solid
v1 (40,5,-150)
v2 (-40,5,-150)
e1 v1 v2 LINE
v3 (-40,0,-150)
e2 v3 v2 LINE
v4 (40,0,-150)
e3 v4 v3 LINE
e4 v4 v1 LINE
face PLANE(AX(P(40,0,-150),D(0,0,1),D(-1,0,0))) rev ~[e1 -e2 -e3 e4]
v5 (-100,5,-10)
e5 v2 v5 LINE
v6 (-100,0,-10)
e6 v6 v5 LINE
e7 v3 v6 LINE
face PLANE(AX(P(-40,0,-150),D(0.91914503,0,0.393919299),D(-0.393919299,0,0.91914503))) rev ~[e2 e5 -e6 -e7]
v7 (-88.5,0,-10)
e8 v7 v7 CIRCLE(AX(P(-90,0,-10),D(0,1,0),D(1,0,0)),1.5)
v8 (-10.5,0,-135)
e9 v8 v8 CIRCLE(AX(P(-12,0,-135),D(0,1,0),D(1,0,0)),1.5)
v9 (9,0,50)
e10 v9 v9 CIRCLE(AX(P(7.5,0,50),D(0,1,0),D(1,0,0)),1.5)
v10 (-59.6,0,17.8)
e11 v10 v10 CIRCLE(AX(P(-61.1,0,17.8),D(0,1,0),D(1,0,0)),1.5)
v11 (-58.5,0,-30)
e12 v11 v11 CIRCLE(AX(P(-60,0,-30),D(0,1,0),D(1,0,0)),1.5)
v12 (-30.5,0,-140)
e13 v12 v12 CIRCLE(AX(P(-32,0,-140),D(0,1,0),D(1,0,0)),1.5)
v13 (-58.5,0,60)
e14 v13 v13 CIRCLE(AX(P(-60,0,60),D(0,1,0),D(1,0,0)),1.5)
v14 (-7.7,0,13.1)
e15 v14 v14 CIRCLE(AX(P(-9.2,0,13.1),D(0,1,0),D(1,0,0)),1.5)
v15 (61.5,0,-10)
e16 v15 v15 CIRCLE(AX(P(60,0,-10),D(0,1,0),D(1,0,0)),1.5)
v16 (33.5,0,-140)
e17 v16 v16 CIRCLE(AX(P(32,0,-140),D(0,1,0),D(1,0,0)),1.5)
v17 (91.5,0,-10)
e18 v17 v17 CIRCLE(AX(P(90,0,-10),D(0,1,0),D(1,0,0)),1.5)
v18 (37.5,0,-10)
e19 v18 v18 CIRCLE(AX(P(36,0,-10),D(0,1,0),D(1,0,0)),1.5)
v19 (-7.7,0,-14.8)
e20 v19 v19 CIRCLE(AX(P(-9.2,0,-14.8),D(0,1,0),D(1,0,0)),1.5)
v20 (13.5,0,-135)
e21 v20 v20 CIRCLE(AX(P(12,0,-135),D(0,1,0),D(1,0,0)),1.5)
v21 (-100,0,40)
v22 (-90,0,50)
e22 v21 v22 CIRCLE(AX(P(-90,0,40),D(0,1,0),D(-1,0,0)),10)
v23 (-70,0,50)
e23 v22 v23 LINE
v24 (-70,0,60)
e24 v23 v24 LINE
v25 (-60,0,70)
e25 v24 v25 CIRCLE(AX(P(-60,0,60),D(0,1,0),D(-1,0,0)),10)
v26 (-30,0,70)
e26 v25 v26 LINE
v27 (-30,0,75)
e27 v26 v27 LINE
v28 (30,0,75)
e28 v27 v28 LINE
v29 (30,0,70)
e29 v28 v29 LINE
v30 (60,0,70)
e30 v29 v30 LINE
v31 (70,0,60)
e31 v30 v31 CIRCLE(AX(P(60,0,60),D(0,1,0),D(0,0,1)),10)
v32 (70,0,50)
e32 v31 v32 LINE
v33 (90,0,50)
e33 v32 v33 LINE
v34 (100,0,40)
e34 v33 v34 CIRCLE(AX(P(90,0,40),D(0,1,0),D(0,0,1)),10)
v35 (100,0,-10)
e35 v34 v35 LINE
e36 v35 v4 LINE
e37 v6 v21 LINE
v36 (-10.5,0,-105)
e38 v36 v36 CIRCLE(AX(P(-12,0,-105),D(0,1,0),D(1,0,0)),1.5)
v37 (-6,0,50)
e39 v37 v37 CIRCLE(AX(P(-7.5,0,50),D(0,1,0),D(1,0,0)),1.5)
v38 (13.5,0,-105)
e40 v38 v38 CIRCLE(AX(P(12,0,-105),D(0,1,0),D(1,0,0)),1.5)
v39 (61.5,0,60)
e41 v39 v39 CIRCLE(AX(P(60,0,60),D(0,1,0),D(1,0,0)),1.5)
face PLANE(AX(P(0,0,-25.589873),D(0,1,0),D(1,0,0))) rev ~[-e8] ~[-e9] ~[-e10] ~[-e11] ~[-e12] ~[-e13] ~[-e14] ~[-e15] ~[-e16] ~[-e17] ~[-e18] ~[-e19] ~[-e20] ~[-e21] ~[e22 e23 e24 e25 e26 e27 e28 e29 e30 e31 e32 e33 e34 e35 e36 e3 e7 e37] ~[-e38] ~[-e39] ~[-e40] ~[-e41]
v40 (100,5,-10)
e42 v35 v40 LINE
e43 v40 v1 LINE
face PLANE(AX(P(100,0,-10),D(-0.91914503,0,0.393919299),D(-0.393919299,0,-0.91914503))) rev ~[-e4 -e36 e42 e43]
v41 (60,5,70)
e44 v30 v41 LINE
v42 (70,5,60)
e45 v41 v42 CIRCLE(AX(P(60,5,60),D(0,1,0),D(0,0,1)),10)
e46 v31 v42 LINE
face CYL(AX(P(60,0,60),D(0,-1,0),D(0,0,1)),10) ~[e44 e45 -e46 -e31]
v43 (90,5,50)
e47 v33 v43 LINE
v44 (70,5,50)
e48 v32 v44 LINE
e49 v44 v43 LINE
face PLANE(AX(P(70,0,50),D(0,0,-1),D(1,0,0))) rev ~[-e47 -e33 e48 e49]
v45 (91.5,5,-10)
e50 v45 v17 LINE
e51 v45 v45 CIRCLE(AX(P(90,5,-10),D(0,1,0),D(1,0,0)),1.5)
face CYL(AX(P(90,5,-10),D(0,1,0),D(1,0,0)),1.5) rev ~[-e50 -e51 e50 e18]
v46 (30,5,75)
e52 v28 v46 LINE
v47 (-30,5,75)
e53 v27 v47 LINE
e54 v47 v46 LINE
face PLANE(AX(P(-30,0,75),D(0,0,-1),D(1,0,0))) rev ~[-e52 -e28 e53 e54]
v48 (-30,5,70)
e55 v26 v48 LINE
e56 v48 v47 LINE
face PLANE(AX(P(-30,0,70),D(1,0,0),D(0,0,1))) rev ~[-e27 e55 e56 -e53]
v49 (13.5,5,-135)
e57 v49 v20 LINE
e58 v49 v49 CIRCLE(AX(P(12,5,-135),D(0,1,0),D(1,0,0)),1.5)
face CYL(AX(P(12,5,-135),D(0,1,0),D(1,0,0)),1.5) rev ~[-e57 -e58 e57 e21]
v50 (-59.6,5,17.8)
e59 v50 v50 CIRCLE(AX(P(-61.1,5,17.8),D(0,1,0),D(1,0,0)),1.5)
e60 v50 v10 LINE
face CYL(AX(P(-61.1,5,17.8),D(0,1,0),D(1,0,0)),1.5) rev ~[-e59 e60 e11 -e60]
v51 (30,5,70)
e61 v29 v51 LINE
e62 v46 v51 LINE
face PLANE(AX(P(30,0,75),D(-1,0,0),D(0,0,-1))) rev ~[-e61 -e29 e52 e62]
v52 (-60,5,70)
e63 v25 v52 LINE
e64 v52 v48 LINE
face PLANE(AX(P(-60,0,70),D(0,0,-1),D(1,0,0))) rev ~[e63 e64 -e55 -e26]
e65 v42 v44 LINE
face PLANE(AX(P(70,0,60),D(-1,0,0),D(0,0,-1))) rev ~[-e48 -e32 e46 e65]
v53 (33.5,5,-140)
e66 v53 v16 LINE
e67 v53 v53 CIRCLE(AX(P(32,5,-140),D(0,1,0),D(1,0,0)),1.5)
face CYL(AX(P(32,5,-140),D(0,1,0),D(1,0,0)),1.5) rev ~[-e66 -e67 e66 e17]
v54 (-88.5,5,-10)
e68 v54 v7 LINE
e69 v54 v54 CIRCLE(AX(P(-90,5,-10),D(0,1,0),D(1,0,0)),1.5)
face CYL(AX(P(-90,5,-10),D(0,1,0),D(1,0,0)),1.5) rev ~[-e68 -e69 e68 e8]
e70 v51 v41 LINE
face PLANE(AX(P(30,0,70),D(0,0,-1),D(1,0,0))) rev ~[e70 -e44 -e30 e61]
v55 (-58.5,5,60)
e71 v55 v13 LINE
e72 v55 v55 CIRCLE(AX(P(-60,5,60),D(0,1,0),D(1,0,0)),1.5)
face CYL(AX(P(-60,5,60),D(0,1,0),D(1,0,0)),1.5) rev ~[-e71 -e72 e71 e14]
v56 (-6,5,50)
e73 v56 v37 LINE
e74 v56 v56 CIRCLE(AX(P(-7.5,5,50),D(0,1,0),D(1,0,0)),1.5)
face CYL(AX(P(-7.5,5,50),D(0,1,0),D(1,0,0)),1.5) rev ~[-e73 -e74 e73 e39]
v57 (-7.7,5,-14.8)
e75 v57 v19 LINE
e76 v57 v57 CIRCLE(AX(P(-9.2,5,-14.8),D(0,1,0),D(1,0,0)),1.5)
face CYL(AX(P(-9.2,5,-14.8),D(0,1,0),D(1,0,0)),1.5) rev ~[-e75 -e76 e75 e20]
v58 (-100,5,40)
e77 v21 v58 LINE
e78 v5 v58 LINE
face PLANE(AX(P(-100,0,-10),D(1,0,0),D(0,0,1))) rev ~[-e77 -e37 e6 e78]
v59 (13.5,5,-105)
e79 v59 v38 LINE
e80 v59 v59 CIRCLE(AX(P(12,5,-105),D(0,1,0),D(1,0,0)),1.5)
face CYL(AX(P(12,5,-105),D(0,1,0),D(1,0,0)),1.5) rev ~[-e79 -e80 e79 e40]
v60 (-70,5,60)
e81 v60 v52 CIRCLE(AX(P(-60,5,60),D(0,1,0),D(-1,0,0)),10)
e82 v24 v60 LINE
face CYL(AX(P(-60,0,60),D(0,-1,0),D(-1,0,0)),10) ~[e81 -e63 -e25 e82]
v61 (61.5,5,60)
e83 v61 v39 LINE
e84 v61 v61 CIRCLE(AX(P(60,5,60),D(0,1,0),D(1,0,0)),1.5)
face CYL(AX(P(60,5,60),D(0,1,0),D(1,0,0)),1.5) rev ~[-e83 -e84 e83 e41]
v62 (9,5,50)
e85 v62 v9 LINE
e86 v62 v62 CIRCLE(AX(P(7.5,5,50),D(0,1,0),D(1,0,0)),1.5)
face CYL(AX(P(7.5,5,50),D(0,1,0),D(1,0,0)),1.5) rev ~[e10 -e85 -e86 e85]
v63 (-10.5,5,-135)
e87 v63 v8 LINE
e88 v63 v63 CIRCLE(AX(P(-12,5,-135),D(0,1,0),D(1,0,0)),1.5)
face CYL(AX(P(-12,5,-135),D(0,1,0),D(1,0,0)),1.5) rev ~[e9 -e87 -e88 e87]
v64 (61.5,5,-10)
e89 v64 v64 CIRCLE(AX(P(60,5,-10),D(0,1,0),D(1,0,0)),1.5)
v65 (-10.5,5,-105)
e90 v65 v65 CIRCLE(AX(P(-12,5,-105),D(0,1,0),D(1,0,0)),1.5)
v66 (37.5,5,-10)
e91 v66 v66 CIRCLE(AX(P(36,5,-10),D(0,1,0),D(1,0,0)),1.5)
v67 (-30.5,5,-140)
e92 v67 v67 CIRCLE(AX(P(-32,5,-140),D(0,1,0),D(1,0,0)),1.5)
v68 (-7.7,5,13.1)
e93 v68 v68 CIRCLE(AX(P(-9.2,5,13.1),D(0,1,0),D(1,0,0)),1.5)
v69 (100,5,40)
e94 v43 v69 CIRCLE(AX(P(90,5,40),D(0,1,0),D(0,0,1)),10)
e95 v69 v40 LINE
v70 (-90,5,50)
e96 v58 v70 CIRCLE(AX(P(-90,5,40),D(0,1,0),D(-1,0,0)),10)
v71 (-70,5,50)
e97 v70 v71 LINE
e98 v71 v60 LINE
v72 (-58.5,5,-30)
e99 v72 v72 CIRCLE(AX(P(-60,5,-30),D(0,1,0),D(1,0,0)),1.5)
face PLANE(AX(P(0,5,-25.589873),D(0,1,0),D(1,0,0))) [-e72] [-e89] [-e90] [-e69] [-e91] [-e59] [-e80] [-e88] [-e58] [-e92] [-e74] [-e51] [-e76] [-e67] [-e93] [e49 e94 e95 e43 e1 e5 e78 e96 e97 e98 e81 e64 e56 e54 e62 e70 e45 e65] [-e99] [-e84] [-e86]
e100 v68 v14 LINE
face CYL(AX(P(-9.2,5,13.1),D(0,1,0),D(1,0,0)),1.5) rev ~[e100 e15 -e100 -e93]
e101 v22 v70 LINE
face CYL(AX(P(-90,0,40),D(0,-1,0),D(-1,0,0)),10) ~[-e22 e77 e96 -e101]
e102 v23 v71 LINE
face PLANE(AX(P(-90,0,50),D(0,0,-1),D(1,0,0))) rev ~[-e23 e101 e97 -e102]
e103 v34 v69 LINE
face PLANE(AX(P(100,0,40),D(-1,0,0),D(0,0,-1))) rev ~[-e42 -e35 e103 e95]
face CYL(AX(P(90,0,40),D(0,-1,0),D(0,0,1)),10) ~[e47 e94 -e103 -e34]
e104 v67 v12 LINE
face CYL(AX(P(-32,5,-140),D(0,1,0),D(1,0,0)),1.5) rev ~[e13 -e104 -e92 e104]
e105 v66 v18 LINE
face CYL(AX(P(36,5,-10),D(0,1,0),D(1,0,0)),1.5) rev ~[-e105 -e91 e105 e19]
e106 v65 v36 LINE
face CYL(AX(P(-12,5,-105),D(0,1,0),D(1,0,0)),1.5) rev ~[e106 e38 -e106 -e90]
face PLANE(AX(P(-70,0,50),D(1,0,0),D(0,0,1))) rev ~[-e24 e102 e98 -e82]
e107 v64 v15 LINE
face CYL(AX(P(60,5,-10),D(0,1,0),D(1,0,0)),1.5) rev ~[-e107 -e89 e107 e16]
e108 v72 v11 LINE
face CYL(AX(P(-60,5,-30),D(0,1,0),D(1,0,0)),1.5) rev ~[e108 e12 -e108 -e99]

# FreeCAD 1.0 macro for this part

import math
import FreeCAD as App
import Part
import Sketcher

doc = App.newDocument("Part")
params = doc.addObject("Spreadsheet::Sheet", "Params")
for row, (alias, value) in enumerate([
    ("sketch1_radius", "10 mm"),
    ("sketch1_width", "80 mm"),
    ("sketch1_width2", "20 mm"),
    ("sketch1_width3", "30 mm"),
    ("sketch1_width4", "60 mm"),
    ("pad1_length", "5 mm"),
    ("sketch2_diameter", "3 mm"),
    ("sketch3_diameter", "3 mm"),
    ("sketch4_diameter", "3 mm"),
    ("pocket3_length", "10 mm"),
    ("sketch5_diameter", "3 mm"),
    ("pocket4_length", "10 mm"),
], start=1):
    params.set(f"A{row}", alias)
    params.set(f"B{row}", "=" + value)
    params.setAlias(f"B{row}", alias)

body = doc.addObject("PartDesign::Body", "Body")

sketch1 = doc.addObject("Sketcher::SketchObject", "Sketch")
body.addObject(sketch1)
sketch1.AttachmentSupport = (doc.XZ_Plane, [""])
sketch1.MapMode = "FlatFace"
sketch1.addGeometry([
    Part.LineSegment(App.Vector(100, 40, 0), App.Vector(100, -10, 0)),
    Part.LineSegment(App.Vector(100, -10, 0), App.Vector(40, -150, 0)),
    Part.LineSegment(App.Vector(40, -150, 0), App.Vector(-40, -150, 0)),
    Part.LineSegment(App.Vector(-40, -150, 0), App.Vector(-100, -10, 0)),
    Part.LineSegment(App.Vector(-100, -10, 0), App.Vector(-100, 40, 0)),
    Part.ArcOfCircle(Part.Circle(App.Vector(-90, 40, 0), App.Vector(0, 0, 1), 10), math.radians(90), math.radians(180)),
    Part.LineSegment(App.Vector(-90, 50, 0), App.Vector(-70, 50, 0)),
    Part.LineSegment(App.Vector(-70, 50, 0), App.Vector(-70, 60, 0)),
    Part.ArcOfCircle(Part.Circle(App.Vector(-60, 60, 0), App.Vector(0, 0, 1), 10), math.radians(90), math.radians(180)),
    Part.LineSegment(App.Vector(-60, 70, 0), App.Vector(-30, 70, 0)),
    Part.LineSegment(App.Vector(-30, 70, 0), App.Vector(-30, 75, 0)),
    Part.LineSegment(App.Vector(-30, 75, 0), App.Vector(30, 75, 0)),
    Part.LineSegment(App.Vector(30, 75, 0), App.Vector(30, 70, 0)),
    Part.LineSegment(App.Vector(30, 70, 0), App.Vector(60, 70, 0)),
    Part.ArcOfCircle(Part.Circle(App.Vector(60, 60, 0), App.Vector(0, 0, 1), 10), math.radians(0), math.radians(90)),
    Part.LineSegment(App.Vector(70, 60, 0), App.Vector(70, 50, 0)),
    Part.LineSegment(App.Vector(70, 50, 0), App.Vector(90, 50, 0)),
    Part.ArcOfCircle(Part.Circle(App.Vector(90, 40, 0), App.Vector(0, 0, 1), 10), math.radians(0), math.radians(90)),
], False)
sketch1.addConstraint([
    Sketcher.Constraint("Coincident", 0, 2, 1, 1),
    Sketcher.Constraint("Coincident", 1, 2, 2, 1),
    Sketcher.Constraint("Coincident", 2, 2, 3, 1),
    Sketcher.Constraint("Coincident", 3, 2, 4, 1),
    Sketcher.Constraint("Tangent", 4, 2, 5, 2),
    Sketcher.Constraint("Tangent", 5, 1, 6, 1),
    Sketcher.Constraint("Coincident", 6, 2, 7, 1),
    Sketcher.Constraint("Tangent", 7, 2, 8, 2),
    Sketcher.Constraint("Tangent", 8, 1, 9, 1),
    Sketcher.Constraint("Coincident", 9, 2, 10, 1),
    Sketcher.Constraint("Coincident", 10, 2, 11, 1),
    Sketcher.Constraint("Coincident", 11, 2, 12, 1),
    Sketcher.Constraint("Coincident", 12, 2, 13, 1),
    Sketcher.Constraint("Tangent", 13, 2, 14, 2),
    Sketcher.Constraint("Tangent", 14, 1, 15, 1),
    Sketcher.Constraint("Coincident", 15, 2, 16, 1),
    Sketcher.Constraint("Tangent", 16, 2, 17, 2),
    Sketcher.Constraint("Tangent", 17, 1, 0, 1),
    Sketcher.Constraint("Vertical", 0),
    Sketcher.Constraint("Horizontal", 2),
    Sketcher.Constraint("Vertical", 4),
    Sketcher.Constraint("Horizontal", 6),
    Sketcher.Constraint("Vertical", 7),
    Sketcher.Constraint("Horizontal", 9),
    Sketcher.Constraint("Vertical", 10),
    Sketcher.Constraint("Horizontal", 11),
    Sketcher.Constraint("Vertical", 12),
    Sketcher.Constraint("Horizontal", 13),
    Sketcher.Constraint("Vertical", 15),
    Sketcher.Constraint("Horizontal", 16),
    Sketcher.Constraint("Equal", 5, 8),
    Sketcher.Constraint("Equal", 8, 14),
    Sketcher.Constraint("Equal", 14, 17),
    Sketcher.Constraint("Symmetric", 8, 3, 14, 3, -2),
    Sketcher.Constraint("Symmetric", 5, 3, 17, 3, -2),
    Sketcher.Constraint("Horizontal", 0, 2, 3, 2),
    Sketcher.Constraint("Equal", 9, 13),
    Sketcher.Constraint("Equal", 1, 3),
    Sketcher.Constraint("Radius", 5, 10.0),
    Sketcher.Constraint("DistanceX", 2, 2, 2, 1, 80.0),
    Sketcher.Constraint("DistanceX", 6, 1, 6, 2, 20.0),
    Sketcher.Constraint("DistanceX", 9, 1, 9, 2, 30.0),
    Sketcher.Constraint("DistanceX", 11, 1, 11, 2, 60.0),
    Sketcher.Constraint("DistanceY", 0, 2, 0, 1, 50.0),
    Sketcher.Constraint("DistanceY", 7, 1, 7, 2, 10.0),
    Sketcher.Constraint("DistanceY", 10, 1, 10, 2, 5.0),
    Sketcher.Constraint("DistanceY", -1, 1, 5, 3, 40.0),
    Sketcher.Constraint("DistanceY", 1, 2, -1, 1, 150.0),
])
sketch1.setExpression("Constraints[38]", "Params.sketch1_radius")
sketch1.setExpression("Constraints[39]", "Params.sketch1_width")
sketch1.setExpression("Constraints[40]", "Params.sketch1_width2")
sketch1.setExpression("Constraints[41]", "Params.sketch1_width3")
sketch1.setExpression("Constraints[42]", "Params.sketch1_width4")
pad1 = doc.addObject("PartDesign::Pad", "Pad")
body.addObject(pad1)
pad1.Profile = sketch1
pad1.setExpression("Length", "Params.pad1_length")
pad1.Reversed = True

sketch2 = doc.addObject("Sketcher::SketchObject", "Sketch001")
body.addObject(sketch2)
sketch2.AttachmentSupport = (doc.XZ_Plane, [""])
sketch2.MapMode = "FlatFace"
sketch2.AttachmentOffset = App.Placement(App.Vector(0, 0, -5), App.Rotation())
sketch2.addGeometry([
    Part.Circle(App.Vector(-61.1, 17.8, 0), App.Vector(0, 0, 1), 1.5),
    Part.Circle(App.Vector(-9.2, 13.1, 0), App.Vector(0, 0, 1), 1.5),
    Part.Circle(App.Vector(-9.2, -14.8, 0), App.Vector(0, 0, 1), 1.5),
    Part.Circle(App.Vector(-60, -30, 0), App.Vector(0, 0, 1), 1.5),
], False)
sketch2.addConstraint([
    Sketcher.Constraint("Equal", 0, 1),
    Sketcher.Constraint("Equal", 1, 2),
    Sketcher.Constraint("Equal", 2, 3),
    Sketcher.Constraint("Vertical", 1, 3, 2, 3),
    Sketcher.Constraint("Diameter", 0, 3.0),
    Sketcher.Constraint("DistanceX", 3, 3, -1, 1, 60.0),
    Sketcher.Constraint("DistanceY", 3, 3, -1, 1, 30.0),
    Sketcher.Constraint("DistanceX", 0, 3, -1, 1, 61.1),
    Sketcher.Constraint("DistanceY", -1, 1, 0, 3, 17.8),
    Sketcher.Constraint("DistanceX", 1, 3, -1, 1, 9.2),
    Sketcher.Constraint("DistanceY", -1, 1, 1, 3, 13.1),
    Sketcher.Constraint("DistanceY", 2, 3, -1, 1, 14.8),
])
sketch2.setExpression("Constraints[4]", "Params.sketch2_diameter")
pocket1 = doc.addObject("PartDesign::Pocket", "Pocket")
body.addObject(pocket1)
pocket1.Profile = sketch2
pocket1.Type = "ThroughAll"
pocket1.Reversed = True

sketch3 = doc.addObject("Sketcher::SketchObject", "Sketch002")
body.addObject(sketch3)
sketch3.AttachmentSupport = (doc.XZ_Plane, [""])
sketch3.MapMode = "FlatFace"
sketch3.AttachmentOffset = App.Placement(App.Vector(0, 0, -5), App.Rotation())
sketch3.addGeometry([
    Part.Circle(App.Vector(12, -135, 0), App.Vector(0, 0, 1), 1.5),
    Part.Circle(App.Vector(-12, -135, 0), App.Vector(0, 0, 1), 1.5),
    Part.Circle(App.Vector(12, -105, 0), App.Vector(0, 0, 1), 1.5),
    Part.Circle(App.Vector(-12, -105, 0), App.Vector(0, 0, 1), 1.5),
], False)
sketch3.addConstraint([
    Sketcher.Constraint("Equal", 0, 1),
    Sketcher.Constraint("Equal", 1, 2),
    Sketcher.Constraint("Equal", 2, 3),
    Sketcher.Constraint("Symmetric", 0, 3, 1, 3, -2),
    Sketcher.Constraint("Symmetric", 2, 3, 3, 3, -2),
    Sketcher.Constraint("Vertical", 0, 3, 2, 3),
    Sketcher.Constraint("Diameter", 0, 3.0),
    Sketcher.Constraint("DistanceX", -1, 1, 0, 3, 12.0),
    Sketcher.Constraint("DistanceY", 0, 3, -1, 1, 135.0),
    Sketcher.Constraint("DistanceY", 2, 3, -1, 1, 105.0),
])
sketch3.setExpression("Constraints[6]", "Params.sketch3_diameter")
pocket2 = doc.addObject("PartDesign::Pocket", "Pocket001")
body.addObject(pocket2)
pocket2.Profile = sketch3
pocket2.Type = "ThroughAll"
pocket2.Reversed = True

sketch4 = doc.addObject("Sketcher::SketchObject", "Sketch003")
body.addObject(sketch4)
sketch4.AttachmentSupport = (doc.XZ_Plane, [""])
sketch4.MapMode = "FlatFace"
sketch4.AttachmentOffset = App.Placement(App.Vector(0, 0, -5), App.Rotation())
sketch4.addGeometry([
    Part.Circle(App.Vector(-90, -10, 0), App.Vector(0, 0, 1), 1.5),
    Part.Circle(App.Vector(-32, -140, 0), App.Vector(0, 0, 1), 1.5),
    Part.Circle(App.Vector(90, -10, 0), App.Vector(0, 0, 1), 1.5),
    Part.Circle(App.Vector(32, -140, 0), App.Vector(0, 0, 1), 1.5),
    Part.Circle(App.Vector(-60, 60, 0), App.Vector(0, 0, 1), 1.5),
    Part.Circle(App.Vector(60, 60, 0), App.Vector(0, 0, 1), 1.5),
    Part.Circle(App.Vector(-7.5, 50, 0), App.Vector(0, 0, 1), 1.5),
    Part.Circle(App.Vector(7.5, 50, 0), App.Vector(0, 0, 1), 1.5),
], False)
sketch4.addConstraint([
    Sketcher.Constraint("Equal", 0, 1),
    Sketcher.Constraint("Equal", 1, 2),
    Sketcher.Constraint("Equal", 2, 3),
    Sketcher.Constraint("Equal", 3, 4),
    Sketcher.Constraint("Equal", 4, 5),
    Sketcher.Constraint("Equal", 5, 6),
    Sketcher.Constraint("Equal", 6, 7),
    Sketcher.Constraint("Symmetric", 0, 3, 2, 3, -2),
    Sketcher.Constraint("Symmetric", 1, 3, 3, 3, -2),
    Sketcher.Constraint("Symmetric", 4, 3, 5, 3, -2),
    Sketcher.Constraint("Symmetric", 6, 3, 7, 3, -2),
    Sketcher.Constraint("Diameter", 0, 3.0),
    Sketcher.Constraint("DistanceX", 0, 3, -1, 1, 90.0),
    Sketcher.Constraint("DistanceY", 0, 3, -1, 1, 10.0),
    Sketcher.Constraint("DistanceX", 1, 3, -1, 1, 32.0),
    Sketcher.Constraint("DistanceY", 1, 3, -1, 1, 140.0),
    Sketcher.Constraint("DistanceX", 4, 3, -1, 1, 60.0),
    Sketcher.Constraint("DistanceY", -1, 1, 4, 3, 60.0),
    Sketcher.Constraint("DistanceY", -1, 1, 6, 3, 50.0),
    Sketcher.Constraint("DistanceX", 6, 3, 7, 3, 15.0),
])
sketch4.setExpression("Constraints[11]", "Params.sketch4_diameter")
pocket3 = doc.addObject("PartDesign::Pocket", "Pocket002")
body.addObject(pocket3)
pocket3.Profile = sketch4
pocket3.setExpression("Length", "Params.pocket3_length")
pocket3.Reversed = True

sketch5 = doc.addObject("Sketcher::SketchObject", "Sketch004")
body.addObject(sketch5)
sketch5.AttachmentSupport = (doc.XZ_Plane, [""])
sketch5.MapMode = "FlatFace"
sketch5.AttachmentOffset = App.Placement(App.Vector(0, 0, -5), App.Rotation())
sketch5.addGeometry([
    Part.Circle(App.Vector(60, -10, 0), App.Vector(0, 0, 1), 1.5),
    Part.Circle(App.Vector(36, -10, 0), App.Vector(0, 0, 1), 1.5),
], False)
sketch5.addConstraint([
    Sketcher.Constraint("Equal", 0, 1),
    Sketcher.Constraint("Horizontal", 0, 3, 1, 3),
    Sketcher.Constraint("Diameter", 0, 3.0),
    Sketcher.Constraint("DistanceX", -1, 1, 0, 3, 60.0),
    Sketcher.Constraint("DistanceY", 0, 3, -1, 1, 10.0),
    Sketcher.Constraint("DistanceX", -1, 1, 1, 3, 36.0),
])
sketch5.setExpression("Constraints[2]", "Params.sketch5_diameter")
pocket4 = doc.addObject("PartDesign::Pocket", "Pocket003")
body.addObject(pocket4)
pocket4.Profile = sketch5
pocket4.setExpression("Length", "Params.pocket4_length")
pocket4.Reversed = True

doc.recompute()
